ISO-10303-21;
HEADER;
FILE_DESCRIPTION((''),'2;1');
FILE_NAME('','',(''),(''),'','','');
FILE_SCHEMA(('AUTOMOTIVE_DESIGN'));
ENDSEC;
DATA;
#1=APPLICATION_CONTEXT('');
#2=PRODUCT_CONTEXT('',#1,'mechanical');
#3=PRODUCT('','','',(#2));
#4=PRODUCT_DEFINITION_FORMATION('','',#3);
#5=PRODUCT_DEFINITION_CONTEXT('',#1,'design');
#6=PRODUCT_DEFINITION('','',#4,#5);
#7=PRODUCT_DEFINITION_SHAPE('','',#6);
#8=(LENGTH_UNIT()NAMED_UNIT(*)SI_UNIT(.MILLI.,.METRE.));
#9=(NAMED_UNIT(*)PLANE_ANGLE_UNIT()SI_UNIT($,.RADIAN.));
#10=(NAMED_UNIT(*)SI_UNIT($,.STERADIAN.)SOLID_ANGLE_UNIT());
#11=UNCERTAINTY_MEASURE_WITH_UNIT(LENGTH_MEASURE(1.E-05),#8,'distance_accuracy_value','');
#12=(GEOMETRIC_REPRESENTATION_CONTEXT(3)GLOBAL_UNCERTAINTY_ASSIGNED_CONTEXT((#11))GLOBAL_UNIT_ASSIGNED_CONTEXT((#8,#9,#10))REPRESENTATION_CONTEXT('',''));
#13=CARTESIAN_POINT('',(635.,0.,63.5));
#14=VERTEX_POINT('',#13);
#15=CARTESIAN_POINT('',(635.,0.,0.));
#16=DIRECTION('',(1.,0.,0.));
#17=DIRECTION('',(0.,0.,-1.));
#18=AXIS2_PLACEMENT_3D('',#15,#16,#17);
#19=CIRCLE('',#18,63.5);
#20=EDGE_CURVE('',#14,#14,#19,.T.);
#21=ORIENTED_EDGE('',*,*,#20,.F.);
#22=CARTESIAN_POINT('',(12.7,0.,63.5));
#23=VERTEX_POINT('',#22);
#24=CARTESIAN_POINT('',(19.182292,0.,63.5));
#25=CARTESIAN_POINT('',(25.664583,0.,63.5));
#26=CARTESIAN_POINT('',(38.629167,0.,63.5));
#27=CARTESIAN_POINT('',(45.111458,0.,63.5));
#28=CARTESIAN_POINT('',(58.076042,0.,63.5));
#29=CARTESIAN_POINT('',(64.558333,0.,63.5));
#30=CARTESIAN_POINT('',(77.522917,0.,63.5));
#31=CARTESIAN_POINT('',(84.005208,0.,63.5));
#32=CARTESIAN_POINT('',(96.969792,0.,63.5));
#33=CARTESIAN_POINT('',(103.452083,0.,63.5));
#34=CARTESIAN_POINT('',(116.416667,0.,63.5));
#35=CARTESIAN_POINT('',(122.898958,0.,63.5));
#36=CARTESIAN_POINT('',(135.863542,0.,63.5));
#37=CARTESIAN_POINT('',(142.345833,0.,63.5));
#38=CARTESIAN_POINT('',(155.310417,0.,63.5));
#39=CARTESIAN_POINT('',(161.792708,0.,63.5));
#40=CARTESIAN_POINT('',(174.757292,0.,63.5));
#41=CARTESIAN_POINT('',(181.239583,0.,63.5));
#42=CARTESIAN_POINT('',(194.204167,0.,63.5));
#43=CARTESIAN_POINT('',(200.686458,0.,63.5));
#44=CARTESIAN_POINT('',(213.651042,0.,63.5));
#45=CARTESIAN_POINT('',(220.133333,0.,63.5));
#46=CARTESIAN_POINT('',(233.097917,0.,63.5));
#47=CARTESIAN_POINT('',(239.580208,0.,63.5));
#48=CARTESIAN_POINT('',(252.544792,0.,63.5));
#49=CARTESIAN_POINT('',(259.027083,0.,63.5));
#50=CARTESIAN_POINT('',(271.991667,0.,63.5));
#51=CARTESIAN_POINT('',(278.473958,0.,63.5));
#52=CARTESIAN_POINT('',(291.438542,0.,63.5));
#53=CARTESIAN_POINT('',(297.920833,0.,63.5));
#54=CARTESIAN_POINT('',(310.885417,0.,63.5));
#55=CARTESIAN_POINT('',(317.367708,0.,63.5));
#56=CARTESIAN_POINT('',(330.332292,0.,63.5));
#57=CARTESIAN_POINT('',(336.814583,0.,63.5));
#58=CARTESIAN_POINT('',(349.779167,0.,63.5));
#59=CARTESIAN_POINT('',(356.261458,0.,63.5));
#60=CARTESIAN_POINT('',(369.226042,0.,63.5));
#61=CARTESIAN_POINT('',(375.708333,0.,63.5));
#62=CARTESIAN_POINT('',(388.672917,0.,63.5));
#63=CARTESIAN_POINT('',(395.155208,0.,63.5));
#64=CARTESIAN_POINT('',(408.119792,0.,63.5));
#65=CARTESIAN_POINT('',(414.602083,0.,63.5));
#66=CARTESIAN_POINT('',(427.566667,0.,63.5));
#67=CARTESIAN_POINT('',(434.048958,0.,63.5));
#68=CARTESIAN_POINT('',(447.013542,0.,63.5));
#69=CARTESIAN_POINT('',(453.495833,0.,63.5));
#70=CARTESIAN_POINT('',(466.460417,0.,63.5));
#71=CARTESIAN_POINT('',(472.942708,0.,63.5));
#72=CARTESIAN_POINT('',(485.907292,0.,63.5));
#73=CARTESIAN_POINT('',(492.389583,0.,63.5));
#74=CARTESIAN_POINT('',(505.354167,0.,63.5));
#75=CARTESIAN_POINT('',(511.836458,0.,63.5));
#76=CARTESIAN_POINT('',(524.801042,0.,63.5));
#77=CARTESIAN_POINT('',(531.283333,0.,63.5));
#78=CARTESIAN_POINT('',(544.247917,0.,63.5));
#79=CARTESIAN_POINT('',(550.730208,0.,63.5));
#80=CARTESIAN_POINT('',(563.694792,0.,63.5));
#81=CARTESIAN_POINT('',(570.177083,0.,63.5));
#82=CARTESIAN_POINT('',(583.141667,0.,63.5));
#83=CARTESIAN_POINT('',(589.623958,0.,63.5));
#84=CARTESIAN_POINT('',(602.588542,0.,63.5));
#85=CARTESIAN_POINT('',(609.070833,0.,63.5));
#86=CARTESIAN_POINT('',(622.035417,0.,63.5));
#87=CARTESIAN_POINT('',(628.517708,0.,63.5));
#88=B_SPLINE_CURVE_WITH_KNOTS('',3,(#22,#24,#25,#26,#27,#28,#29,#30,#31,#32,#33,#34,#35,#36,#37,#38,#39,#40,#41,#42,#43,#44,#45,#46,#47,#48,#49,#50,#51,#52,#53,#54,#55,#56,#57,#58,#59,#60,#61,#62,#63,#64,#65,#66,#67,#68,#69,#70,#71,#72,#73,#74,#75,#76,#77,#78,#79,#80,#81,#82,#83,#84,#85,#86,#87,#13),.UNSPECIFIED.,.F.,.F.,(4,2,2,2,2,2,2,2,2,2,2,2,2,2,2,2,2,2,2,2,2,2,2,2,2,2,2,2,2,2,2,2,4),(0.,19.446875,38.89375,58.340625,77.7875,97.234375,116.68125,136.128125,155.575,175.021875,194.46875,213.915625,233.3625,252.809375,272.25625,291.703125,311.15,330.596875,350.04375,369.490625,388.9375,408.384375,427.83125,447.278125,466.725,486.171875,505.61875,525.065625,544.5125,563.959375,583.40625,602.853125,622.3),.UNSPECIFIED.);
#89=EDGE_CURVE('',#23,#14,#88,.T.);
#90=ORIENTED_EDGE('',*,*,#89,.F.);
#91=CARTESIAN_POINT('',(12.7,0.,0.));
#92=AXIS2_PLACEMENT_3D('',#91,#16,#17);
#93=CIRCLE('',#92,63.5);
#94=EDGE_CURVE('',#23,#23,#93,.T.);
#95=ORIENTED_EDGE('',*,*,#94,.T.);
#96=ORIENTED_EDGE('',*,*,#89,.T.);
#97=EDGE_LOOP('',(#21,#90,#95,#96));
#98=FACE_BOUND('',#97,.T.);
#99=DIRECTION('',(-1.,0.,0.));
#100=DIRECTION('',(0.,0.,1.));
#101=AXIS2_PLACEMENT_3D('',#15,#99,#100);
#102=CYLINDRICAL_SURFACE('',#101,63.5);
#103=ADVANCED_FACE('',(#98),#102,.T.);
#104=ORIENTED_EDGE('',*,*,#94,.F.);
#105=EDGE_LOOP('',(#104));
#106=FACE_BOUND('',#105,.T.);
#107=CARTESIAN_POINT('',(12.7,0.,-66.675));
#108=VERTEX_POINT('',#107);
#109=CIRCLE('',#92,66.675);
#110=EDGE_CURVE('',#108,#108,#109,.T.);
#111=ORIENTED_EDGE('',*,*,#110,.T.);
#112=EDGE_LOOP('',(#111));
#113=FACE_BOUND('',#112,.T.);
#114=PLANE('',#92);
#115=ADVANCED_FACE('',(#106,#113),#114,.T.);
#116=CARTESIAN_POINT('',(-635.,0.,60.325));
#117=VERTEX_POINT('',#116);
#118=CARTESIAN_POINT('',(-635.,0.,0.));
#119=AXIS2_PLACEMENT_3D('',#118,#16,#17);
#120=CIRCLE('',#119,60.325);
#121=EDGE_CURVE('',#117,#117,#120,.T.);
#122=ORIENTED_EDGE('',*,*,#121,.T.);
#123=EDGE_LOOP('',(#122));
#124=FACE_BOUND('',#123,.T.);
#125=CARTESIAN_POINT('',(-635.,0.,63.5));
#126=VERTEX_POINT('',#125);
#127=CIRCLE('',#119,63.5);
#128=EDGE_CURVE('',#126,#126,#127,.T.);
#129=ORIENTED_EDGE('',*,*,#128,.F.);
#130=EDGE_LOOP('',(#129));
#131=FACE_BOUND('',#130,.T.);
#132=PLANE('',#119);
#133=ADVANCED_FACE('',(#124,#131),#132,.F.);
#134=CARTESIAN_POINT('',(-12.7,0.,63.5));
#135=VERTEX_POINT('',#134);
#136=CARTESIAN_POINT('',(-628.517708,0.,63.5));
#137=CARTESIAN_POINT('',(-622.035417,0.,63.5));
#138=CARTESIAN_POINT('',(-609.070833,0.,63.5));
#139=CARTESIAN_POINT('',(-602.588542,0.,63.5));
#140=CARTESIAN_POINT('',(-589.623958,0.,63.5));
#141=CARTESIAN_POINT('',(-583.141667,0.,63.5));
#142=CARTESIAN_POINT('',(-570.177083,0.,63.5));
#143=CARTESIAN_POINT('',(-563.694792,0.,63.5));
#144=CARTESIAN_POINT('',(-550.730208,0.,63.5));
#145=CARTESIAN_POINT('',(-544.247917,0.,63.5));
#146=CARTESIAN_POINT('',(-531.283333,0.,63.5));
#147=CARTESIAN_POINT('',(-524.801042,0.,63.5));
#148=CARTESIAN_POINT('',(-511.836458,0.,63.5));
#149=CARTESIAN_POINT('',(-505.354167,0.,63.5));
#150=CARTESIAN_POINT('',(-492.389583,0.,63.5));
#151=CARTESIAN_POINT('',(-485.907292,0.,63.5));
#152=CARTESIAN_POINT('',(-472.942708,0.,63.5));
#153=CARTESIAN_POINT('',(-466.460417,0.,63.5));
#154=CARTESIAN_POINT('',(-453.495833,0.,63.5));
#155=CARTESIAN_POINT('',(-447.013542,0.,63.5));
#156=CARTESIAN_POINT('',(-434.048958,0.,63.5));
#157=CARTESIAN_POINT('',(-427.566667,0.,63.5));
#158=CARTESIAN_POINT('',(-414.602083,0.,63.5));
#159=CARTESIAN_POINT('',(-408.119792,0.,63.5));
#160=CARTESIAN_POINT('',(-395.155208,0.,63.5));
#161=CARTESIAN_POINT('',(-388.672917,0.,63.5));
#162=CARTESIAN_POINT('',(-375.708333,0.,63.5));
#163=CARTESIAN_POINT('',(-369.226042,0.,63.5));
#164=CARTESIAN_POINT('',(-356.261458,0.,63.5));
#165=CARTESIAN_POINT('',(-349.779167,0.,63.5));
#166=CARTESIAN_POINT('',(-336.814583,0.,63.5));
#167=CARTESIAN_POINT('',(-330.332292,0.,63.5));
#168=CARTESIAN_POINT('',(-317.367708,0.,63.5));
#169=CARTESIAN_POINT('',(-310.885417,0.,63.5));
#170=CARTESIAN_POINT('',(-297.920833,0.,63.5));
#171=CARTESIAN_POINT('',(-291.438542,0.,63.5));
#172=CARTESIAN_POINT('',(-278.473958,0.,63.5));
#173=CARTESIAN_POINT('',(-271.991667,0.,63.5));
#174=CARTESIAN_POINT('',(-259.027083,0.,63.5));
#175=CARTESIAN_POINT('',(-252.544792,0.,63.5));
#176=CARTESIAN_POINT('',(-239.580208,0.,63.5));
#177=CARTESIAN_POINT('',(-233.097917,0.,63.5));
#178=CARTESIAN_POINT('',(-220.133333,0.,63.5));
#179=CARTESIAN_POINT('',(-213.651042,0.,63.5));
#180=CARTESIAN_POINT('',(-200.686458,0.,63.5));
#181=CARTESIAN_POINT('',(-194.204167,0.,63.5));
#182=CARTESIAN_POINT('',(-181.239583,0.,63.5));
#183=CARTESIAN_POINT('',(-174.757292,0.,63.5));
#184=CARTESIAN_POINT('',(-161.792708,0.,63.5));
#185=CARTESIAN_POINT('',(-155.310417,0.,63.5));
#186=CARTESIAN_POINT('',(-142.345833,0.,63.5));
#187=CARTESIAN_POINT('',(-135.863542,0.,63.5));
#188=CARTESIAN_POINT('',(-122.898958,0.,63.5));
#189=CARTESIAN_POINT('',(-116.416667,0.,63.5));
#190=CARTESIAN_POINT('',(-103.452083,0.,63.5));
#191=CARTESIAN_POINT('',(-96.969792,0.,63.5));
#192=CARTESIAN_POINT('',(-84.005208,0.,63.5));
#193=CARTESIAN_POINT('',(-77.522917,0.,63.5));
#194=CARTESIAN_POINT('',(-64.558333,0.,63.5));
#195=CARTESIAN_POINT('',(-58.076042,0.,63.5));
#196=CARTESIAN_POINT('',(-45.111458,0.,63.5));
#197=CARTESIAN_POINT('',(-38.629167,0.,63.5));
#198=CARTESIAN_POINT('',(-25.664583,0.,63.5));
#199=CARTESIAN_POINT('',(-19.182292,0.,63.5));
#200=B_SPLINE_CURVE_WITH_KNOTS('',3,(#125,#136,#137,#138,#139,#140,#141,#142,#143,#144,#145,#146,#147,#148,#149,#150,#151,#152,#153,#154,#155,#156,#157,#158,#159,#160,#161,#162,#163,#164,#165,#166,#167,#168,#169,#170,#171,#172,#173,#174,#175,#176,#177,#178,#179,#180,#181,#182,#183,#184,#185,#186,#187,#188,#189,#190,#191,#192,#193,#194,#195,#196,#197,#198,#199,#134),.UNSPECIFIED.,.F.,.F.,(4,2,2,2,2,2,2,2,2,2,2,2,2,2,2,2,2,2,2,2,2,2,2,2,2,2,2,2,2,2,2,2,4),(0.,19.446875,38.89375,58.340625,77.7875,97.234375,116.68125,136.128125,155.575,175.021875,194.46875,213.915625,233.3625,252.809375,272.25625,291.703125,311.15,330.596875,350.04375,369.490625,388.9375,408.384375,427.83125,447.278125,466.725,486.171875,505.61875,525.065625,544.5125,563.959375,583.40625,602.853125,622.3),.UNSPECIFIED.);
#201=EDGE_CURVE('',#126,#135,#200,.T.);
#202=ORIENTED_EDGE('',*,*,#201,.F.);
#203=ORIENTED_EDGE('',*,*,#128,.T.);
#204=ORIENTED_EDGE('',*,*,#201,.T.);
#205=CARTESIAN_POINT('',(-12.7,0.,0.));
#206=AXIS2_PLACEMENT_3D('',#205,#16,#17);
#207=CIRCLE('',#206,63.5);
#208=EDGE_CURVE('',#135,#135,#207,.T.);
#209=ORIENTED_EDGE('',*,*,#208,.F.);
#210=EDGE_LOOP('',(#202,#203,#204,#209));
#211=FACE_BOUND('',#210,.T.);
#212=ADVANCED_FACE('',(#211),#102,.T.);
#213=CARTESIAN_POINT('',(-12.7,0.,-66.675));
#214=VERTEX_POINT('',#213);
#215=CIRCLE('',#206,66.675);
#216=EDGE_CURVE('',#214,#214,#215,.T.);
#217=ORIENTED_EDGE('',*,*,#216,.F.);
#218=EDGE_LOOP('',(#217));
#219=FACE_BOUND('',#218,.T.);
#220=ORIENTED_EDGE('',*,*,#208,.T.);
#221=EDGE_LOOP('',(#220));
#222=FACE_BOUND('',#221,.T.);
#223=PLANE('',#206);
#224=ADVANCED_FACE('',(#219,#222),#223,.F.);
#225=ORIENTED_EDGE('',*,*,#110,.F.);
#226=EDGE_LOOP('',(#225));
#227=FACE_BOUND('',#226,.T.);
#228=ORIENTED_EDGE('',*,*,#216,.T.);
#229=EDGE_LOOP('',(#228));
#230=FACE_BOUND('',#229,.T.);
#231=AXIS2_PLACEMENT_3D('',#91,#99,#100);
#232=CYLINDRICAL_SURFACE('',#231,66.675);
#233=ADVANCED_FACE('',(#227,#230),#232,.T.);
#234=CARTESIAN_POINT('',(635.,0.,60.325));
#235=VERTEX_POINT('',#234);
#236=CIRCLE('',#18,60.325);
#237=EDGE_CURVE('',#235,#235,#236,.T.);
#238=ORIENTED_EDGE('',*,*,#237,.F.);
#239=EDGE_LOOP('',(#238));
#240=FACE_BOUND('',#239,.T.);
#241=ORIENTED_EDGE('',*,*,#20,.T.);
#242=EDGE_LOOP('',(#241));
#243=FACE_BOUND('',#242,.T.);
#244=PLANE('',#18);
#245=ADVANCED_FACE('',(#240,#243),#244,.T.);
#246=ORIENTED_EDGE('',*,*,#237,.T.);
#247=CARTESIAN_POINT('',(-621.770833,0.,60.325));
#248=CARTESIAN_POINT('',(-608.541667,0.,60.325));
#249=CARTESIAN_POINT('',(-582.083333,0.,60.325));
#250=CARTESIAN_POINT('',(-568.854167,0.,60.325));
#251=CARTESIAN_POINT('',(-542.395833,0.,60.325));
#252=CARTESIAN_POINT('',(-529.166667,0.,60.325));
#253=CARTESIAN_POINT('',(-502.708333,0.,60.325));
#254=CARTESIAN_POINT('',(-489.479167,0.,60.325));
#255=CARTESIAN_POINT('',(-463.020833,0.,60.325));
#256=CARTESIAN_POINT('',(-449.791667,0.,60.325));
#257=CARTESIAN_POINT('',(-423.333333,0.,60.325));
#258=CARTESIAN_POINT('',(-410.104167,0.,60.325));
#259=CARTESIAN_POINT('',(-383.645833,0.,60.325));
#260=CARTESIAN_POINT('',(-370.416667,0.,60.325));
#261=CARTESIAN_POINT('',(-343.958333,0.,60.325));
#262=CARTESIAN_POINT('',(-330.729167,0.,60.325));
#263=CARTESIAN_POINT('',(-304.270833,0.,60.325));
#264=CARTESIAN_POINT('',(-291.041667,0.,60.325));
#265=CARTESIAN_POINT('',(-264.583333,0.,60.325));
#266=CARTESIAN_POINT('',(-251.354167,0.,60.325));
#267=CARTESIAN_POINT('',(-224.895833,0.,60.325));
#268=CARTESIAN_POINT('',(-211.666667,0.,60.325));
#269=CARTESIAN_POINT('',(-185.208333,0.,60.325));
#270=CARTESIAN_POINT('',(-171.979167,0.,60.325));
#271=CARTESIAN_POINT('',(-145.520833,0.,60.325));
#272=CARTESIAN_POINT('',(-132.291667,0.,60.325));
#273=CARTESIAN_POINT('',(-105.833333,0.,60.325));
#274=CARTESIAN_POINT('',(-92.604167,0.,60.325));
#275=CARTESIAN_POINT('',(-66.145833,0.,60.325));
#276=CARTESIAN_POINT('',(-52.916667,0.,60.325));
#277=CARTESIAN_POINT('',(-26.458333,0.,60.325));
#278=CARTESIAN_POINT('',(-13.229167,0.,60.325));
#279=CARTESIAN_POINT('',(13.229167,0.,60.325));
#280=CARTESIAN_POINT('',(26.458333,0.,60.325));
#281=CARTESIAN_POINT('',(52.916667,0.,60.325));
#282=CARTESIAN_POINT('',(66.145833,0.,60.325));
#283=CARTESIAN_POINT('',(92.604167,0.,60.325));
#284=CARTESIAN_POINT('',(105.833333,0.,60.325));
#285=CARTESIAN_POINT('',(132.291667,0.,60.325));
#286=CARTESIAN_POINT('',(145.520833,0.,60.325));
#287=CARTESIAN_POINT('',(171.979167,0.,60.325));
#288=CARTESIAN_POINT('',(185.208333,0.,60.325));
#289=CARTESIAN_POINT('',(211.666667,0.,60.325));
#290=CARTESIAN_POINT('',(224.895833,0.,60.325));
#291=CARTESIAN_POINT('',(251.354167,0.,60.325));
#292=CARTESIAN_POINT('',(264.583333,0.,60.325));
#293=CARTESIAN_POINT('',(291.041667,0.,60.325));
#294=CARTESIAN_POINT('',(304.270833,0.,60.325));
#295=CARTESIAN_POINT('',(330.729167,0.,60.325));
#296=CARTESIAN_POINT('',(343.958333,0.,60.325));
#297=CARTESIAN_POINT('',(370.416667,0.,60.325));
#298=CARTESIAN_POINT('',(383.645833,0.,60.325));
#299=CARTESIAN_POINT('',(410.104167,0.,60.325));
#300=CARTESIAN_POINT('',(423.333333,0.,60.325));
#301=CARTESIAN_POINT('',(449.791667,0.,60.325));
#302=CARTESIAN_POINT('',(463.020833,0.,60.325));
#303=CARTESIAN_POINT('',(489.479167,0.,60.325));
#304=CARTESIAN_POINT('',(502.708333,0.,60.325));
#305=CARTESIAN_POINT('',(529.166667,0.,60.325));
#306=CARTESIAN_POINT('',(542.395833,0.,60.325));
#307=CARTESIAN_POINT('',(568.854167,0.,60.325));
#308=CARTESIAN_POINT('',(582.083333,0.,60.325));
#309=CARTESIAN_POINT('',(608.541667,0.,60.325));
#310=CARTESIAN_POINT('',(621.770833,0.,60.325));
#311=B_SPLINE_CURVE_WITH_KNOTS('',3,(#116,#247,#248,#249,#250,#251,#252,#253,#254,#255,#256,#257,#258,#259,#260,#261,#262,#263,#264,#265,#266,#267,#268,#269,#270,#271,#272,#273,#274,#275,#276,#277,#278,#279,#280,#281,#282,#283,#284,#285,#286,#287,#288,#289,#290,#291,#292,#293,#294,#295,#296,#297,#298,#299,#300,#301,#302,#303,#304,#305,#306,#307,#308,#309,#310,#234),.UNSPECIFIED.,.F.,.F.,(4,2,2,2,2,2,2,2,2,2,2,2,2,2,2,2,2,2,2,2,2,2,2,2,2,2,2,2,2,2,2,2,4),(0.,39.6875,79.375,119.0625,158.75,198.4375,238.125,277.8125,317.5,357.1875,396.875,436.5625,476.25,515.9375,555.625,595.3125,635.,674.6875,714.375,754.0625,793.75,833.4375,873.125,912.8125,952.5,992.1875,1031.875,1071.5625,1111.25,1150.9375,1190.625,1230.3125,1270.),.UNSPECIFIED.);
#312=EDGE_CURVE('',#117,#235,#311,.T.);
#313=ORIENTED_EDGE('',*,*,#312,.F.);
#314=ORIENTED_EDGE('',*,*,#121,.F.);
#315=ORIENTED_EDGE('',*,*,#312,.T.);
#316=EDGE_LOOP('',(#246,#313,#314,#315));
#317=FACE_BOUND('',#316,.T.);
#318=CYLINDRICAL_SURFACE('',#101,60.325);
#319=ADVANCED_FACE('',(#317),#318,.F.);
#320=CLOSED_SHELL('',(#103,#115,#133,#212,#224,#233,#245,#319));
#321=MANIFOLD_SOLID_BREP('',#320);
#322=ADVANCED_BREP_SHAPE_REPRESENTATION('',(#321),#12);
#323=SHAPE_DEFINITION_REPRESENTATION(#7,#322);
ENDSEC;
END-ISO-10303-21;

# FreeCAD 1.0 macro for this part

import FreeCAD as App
import Part
import Sketcher
from FreeCAD import Vector
Q = App.Units.Quantity

doc = App.newDocument("Part")
params = doc.addObject("Spreadsheet::Sheet", "Params")
for row, (alias, value) in enumerate([
    ("sketch1_diameter", "5 in"),
    ("sketch1_diameter2", "4.75 in"),
    ("pad1_length", "50 in"),
    ("sketch2_diameter", "5.25 in"),
    ("pad2_length", "1 in"),
    ("sketch3_diameter", "4.75 in"),
    ("pocket1_length", "5.7 in"),
], start=1):
    params.set(f"A{row}", alias)
    params.set(f"B{row}", "=" + value)
    params.setAlias(f"B{row}", alias)

body = doc.addObject("PartDesign::Body", "Body")

sketch1 = body.newObject("Sketcher::SketchObject", "Sketch")
sketch1.AttachmentSupport = (doc.getObject("YZ_Plane"), [""])
sketch1.MapMode = "FlatFace"
sketch1.addGeometry(Part.Circle(Vector(0, 0, 0), Vector(0, 0, 1), 64), False)
sketch1.addGeometry(Part.Circle(Vector(0, 0, 0), Vector(0, 0, 1), 60), False)
sketch1.addConstraint(Sketcher.Constraint("Coincident", 0, 3, -1, 1))
sketch1.addConstraint(Sketcher.Constraint("Coincident", 1, 3, -1, 1))
sketch1.addConstraint(Sketcher.Constraint("Diameter", 0, Q("5 in")))
sketch1.addConstraint(Sketcher.Constraint("Diameter", 1, Q("4.75 in")))
sketch1.setExpression("Constraints[2]", "Params.sketch1_diameter")
sketch1.setExpression("Constraints[3]", "Params.sketch1_diameter2")
pad1 = body.newObject("PartDesign::Pad", "Pad")
pad1.Profile = sketch1
pad1.setExpression("Length", "Params.pad1_length")
pad1.Midplane = True

sketch2 = body.newObject("Sketcher::SketchObject", "Sketch001")
sketch2.AttachmentSupport = (doc.getObject("YZ_Plane"), [""])
sketch2.MapMode = "FlatFace"
sketch2.addGeometry(Part.Circle(Vector(0, 0, 0), Vector(0, 0, 1), 67), False)
sketch2.addConstraint(Sketcher.Constraint("Coincident", 0, 3, -1, 1))
sketch2.addConstraint(Sketcher.Constraint("Diameter", 0, Q("5.25 in")))
sketch2.setExpression("Constraints[1]", "Params.sketch2_diameter")
pad2 = body.newObject("PartDesign::Pad", "Pad001")
pad2.Profile = sketch2
pad2.setExpression("Length", "Params.pad2_length")
pad2.Midplane = True

sketch3 = body.newObject("Sketcher::SketchObject", "Sketch002")
sketch3.AttachmentSupport = (doc.getObject("YZ_Plane"), [""])
sketch3.MapMode = "FlatFace"
sketch3.AttachmentOffset = App.Placement(Vector(0, 0, -0.5 * 25.4), App.Rotation())
sketch3.addGeometry(Part.Circle(Vector(0, 0, 0), Vector(0, 0, 1), 60), False)
sketch3.addConstraint(Sketcher.Constraint("Coincident", 0, 3, -1, 1))
sketch3.addConstraint(Sketcher.Constraint("Diameter", 0, Q("4.75 in")))
sketch3.setExpression("Constraints[1]", "Params.sketch3_diameter")
pocket1 = body.newObject("PartDesign::Pocket", "Pocket")
pocket1.Profile = sketch3
pocket1.setExpression("Length", "Params.pocket1_length")
pocket1.Midplane = True

doc.recompute()
